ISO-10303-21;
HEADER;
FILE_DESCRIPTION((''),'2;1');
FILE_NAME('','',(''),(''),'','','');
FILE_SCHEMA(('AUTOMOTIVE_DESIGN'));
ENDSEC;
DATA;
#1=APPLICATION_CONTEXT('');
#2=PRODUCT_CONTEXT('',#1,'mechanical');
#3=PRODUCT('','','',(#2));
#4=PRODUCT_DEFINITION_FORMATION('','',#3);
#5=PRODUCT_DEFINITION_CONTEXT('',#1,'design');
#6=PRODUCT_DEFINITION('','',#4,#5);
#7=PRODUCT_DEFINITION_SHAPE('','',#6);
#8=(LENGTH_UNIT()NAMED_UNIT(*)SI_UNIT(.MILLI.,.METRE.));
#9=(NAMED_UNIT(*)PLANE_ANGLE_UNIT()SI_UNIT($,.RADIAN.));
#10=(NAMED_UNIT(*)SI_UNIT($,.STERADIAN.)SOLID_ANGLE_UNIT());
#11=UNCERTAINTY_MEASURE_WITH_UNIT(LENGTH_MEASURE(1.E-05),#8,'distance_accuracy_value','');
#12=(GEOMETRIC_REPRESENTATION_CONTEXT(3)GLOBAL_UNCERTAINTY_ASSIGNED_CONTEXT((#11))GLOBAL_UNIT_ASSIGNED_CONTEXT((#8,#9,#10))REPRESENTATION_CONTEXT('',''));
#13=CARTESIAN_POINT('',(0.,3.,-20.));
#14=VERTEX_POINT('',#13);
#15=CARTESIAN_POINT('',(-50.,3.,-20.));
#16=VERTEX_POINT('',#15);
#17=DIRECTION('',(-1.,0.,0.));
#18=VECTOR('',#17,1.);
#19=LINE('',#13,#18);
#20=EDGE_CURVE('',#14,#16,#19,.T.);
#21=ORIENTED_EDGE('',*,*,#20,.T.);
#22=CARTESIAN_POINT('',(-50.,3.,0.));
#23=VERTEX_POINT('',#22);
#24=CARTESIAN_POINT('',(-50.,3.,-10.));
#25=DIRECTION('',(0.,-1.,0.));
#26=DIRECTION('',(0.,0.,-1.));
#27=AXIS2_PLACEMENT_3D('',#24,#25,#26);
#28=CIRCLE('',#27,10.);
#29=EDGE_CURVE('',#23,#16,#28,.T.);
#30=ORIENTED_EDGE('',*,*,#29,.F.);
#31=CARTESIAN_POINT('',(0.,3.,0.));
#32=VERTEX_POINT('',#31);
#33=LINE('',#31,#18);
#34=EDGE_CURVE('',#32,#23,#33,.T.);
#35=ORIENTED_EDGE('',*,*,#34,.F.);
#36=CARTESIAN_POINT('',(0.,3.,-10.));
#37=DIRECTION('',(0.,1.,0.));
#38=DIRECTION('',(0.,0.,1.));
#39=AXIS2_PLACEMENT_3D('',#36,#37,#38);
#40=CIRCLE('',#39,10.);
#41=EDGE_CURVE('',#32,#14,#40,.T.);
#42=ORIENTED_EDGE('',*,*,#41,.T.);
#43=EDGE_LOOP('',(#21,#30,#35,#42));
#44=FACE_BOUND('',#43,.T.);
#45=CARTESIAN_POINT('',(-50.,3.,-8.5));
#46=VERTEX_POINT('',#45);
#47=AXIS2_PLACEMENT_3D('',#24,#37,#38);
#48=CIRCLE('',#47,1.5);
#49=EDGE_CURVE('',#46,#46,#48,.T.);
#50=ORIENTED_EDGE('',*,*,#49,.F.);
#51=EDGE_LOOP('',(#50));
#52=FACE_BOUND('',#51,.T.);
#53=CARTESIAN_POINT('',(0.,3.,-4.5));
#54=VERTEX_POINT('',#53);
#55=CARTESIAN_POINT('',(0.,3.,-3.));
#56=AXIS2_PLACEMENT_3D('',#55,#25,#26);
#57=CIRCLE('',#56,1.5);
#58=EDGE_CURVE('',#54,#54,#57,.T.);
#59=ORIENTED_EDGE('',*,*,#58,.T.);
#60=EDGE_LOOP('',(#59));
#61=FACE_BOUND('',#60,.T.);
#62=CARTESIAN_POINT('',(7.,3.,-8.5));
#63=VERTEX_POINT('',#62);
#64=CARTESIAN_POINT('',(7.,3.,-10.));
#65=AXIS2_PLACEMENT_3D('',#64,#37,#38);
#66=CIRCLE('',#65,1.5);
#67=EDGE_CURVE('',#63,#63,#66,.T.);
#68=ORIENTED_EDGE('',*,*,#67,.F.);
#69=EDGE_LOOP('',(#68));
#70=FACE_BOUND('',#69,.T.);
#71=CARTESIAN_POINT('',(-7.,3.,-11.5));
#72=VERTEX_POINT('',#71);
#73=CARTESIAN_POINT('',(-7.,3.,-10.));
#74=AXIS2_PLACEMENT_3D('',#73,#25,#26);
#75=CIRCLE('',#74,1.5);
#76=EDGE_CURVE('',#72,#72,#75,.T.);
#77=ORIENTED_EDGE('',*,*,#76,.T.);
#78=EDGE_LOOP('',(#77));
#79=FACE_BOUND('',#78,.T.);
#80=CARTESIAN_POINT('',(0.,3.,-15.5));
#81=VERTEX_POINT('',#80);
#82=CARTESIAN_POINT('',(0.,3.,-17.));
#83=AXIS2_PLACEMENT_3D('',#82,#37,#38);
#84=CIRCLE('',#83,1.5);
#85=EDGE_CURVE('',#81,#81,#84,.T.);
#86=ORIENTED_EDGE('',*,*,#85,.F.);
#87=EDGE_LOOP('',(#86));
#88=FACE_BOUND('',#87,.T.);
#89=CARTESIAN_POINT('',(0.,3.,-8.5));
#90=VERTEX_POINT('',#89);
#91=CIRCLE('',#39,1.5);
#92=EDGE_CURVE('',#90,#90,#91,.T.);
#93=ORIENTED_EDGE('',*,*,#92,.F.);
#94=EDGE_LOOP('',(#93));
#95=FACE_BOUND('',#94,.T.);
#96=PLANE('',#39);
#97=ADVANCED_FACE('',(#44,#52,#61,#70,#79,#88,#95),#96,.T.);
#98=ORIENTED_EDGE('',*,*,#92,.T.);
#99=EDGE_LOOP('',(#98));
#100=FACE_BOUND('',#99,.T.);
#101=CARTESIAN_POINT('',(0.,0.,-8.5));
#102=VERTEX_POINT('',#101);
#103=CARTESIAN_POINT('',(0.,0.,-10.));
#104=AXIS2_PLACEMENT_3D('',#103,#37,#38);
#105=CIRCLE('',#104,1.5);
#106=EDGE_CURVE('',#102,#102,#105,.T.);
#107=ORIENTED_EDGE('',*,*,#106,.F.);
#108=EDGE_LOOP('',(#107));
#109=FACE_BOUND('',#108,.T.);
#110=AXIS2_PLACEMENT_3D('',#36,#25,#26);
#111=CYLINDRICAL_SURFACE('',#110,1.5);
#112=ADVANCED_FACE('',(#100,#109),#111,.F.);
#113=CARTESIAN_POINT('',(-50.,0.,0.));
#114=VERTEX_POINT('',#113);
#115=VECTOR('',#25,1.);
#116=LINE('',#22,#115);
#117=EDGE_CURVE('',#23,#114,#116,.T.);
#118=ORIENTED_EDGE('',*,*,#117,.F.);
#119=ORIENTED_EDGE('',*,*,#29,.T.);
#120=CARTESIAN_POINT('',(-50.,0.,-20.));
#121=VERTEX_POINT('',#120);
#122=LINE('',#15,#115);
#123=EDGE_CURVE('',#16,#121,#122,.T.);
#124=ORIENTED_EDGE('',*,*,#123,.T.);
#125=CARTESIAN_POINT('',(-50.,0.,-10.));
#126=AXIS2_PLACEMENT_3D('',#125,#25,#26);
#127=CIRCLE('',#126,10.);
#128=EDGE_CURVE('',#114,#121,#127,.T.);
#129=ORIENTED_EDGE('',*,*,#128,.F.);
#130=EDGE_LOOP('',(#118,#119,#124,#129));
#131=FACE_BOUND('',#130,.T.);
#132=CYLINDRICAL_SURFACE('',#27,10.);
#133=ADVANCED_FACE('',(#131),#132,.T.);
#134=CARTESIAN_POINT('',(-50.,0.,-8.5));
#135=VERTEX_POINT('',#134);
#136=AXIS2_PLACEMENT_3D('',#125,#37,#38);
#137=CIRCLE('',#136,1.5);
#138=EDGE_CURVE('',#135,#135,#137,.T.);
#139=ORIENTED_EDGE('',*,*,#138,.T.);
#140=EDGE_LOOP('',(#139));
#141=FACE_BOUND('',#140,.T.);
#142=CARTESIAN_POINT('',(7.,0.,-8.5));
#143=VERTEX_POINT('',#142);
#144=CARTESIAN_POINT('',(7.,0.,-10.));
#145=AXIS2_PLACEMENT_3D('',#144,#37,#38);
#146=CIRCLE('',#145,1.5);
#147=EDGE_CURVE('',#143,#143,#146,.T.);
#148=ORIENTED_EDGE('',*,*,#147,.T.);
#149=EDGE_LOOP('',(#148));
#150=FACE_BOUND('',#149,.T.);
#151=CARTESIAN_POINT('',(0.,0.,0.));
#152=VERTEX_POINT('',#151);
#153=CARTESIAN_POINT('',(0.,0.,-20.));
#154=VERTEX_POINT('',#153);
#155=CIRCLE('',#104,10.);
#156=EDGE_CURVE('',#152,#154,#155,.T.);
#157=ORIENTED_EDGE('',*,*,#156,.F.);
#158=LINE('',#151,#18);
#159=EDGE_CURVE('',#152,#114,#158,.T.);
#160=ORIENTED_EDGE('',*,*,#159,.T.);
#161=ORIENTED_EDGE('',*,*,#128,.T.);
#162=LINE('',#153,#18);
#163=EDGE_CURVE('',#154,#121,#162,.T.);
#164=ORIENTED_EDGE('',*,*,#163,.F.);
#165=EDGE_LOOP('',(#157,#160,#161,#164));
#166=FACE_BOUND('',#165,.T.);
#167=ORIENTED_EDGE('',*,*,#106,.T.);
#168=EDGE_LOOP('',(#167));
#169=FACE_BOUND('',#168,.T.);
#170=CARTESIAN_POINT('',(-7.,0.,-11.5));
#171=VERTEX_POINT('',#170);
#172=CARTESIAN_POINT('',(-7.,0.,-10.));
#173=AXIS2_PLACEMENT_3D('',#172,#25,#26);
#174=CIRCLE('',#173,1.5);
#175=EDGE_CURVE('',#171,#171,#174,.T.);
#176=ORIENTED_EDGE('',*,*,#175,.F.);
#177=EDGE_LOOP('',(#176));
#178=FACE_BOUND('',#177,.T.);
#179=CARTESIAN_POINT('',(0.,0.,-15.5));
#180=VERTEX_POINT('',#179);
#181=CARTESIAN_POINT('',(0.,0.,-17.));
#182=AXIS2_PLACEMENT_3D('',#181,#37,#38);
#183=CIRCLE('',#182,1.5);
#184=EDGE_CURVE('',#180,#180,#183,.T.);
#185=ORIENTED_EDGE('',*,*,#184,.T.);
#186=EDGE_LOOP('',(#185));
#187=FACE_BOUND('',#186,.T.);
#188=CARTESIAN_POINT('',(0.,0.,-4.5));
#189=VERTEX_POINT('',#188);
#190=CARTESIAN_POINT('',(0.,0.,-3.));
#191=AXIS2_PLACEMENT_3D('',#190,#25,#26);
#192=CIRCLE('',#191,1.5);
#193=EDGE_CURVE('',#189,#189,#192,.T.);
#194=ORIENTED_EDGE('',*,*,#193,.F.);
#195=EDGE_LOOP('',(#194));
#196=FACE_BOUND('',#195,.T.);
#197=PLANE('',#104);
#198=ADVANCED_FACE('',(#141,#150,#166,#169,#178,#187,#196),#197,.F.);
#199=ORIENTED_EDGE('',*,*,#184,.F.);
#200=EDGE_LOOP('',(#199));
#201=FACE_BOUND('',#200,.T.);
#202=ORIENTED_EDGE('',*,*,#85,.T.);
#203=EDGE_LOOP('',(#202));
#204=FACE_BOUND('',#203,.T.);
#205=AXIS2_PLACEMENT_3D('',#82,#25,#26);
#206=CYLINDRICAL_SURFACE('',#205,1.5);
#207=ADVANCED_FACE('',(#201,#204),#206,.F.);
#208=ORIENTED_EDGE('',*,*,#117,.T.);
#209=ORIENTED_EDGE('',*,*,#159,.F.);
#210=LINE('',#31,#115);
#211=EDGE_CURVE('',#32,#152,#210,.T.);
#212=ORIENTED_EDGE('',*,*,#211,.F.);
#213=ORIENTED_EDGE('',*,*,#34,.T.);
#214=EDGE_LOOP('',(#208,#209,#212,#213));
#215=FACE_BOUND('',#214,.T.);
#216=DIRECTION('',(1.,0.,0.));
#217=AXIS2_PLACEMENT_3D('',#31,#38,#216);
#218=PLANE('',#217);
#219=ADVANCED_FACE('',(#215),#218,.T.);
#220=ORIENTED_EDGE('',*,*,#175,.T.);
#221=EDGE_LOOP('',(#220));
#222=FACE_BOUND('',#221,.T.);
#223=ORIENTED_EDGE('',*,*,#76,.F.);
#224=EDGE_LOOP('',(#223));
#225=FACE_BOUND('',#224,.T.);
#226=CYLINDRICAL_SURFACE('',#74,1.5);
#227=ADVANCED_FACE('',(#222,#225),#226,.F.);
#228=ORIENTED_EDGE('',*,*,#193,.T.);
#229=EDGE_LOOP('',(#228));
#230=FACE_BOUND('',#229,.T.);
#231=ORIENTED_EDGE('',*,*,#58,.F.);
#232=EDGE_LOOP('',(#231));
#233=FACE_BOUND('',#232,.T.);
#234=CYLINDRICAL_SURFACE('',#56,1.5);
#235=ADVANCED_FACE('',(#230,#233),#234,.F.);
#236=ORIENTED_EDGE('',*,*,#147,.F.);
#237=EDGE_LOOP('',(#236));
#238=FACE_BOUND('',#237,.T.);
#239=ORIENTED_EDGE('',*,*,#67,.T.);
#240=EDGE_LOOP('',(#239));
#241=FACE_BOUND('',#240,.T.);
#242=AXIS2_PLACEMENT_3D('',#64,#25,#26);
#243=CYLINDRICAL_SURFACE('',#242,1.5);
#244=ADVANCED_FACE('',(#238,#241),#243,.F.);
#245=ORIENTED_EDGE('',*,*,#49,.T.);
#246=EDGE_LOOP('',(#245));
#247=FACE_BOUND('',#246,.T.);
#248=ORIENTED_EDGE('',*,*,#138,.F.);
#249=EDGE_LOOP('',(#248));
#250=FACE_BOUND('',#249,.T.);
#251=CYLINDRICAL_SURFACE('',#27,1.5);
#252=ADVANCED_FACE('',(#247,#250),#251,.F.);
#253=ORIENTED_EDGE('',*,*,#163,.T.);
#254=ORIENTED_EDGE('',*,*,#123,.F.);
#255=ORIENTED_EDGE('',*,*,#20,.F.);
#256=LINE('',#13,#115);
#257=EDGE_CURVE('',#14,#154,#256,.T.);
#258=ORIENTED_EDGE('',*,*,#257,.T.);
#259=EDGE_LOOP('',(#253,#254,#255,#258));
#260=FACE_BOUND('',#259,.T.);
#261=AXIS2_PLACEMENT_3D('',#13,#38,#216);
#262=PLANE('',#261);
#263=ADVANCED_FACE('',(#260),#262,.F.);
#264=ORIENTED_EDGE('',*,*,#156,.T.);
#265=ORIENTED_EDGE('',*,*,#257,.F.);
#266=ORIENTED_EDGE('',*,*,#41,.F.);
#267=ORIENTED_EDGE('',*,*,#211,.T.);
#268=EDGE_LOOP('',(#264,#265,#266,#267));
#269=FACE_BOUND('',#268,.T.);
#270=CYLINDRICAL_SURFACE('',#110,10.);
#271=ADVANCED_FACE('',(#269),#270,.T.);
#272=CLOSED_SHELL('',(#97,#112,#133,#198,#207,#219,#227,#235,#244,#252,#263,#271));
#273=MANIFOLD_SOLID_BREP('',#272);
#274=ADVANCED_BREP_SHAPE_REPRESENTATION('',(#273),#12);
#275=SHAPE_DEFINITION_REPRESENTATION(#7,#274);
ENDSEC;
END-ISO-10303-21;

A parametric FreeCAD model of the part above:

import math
import FreeCAD as App
import Part
import Sketcher
from FreeCAD import Vector

doc = App.newDocument("Part")
params = doc.addObject("Spreadsheet::Sheet", "Params")
for row, (alias, value) in enumerate([
    ("sketch1_diameter", "3 mm"),
    ("sketch1_radius", "10 mm"),
    ("sketch1_width", "50 mm"),
    ("pad1_length", "3 mm"),
], start=1):
    params.set(f"A{row}", alias)
    params.set(f"B{row}", "=" + value)
    params.setAlias(f"B{row}", alias)

body = doc.addObject("PartDesign::Body", "Body")

sketch1 = body.newObject("Sketcher::SketchObject", "Sketch")
sketch1.AttachmentSupport = (doc.getObject("XZ_Plane"), [""])
sketch1.MapMode = "FlatFace"
sketch1.addGeometry(Part.LineSegment(Vector(-50, 0, 0), Vector(0, 0, 0)), False)
sketch1.addGeometry(Part.ArcOfCircle(Part.Circle(Vector(0, -10, 0), Vector(0, 0, 1), 10), math.radians(-90), math.radians(90)), False)
sketch1.addGeometry(Part.LineSegment(Vector(0, -20, 0), Vector(-50, -20, 0)), False)
sketch1.addGeometry(Part.ArcOfCircle(Part.Circle(Vector(-50, -10, 0), Vector(0, 0, 1), 10), math.radians(90), math.radians(270)), False)
sketch1.addGeometry(Part.Circle(Vector(0, -3, 0), Vector(0, 0, 1), 1.5), False)
sketch1.addGeometry(Part.Circle(Vector(7, -10, 0), Vector(0, 0, 1), 1.5), False)
sketch1.addGeometry(Part.Circle(Vector(0, -10, 0), Vector(0, 0, 1), 1.5), False)
sketch1.addGeometry(Part.Circle(Vector(-7, -10, 0), Vector(0, 0, 1), 1.5), False)
sketch1.addGeometry(Part.Circle(Vector(0, -17, 0), Vector(0, 0, 1), 1.5), False)
sketch1.addGeometry(Part.Circle(Vector(-50, -10, 0), Vector(0, 0, 1), 1.5), False)
sketch1.addConstraint(Sketcher.Constraint("Tangent", 0, 2, 1, 2))
sketch1.addConstraint(Sketcher.Constraint("Tangent", 1, 1, 2, 1))
sketch1.addConstraint(Sketcher.Constraint("Tangent", 2, 2, 3, 2))
sketch1.addConstraint(Sketcher.Constraint("Tangent", 3, 1, 0, 1))
sketch1.addConstraint(Sketcher.Constraint("Horizontal", 0))
sketch1.addConstraint(Sketcher.Constraint("Horizontal", 2))
sketch1.addConstraint(Sketcher.Constraint("Coincident", 0, 2, -1, 1))
sketch1.addConstraint(Sketcher.Constraint("Coincident", 6, 3, 1, 3))
sketch1.addConstraint(Sketcher.Constraint("Coincident", 9, 3, 3, 3))
sketch1.addConstraint(Sketcher.Constraint("Equal", 4, 5))
sketch1.addConstraint(Sketcher.Constraint("Equal", 5, 6))
sketch1.addConstraint(Sketcher.Constraint("Equal", 6, 7))
sketch1.addConstraint(Sketcher.Constraint("Equal", 7, 8))
sketch1.addConstraint(Sketcher.Constraint("Equal", 8, 9))
sketch1.addConstraint(Sketcher.Constraint("Symmetric", 5, 3, 7, 3, -2))
sketch1.addConstraint(Sketcher.Constraint("PointOnObject", 4, 3, -2))
sketch1.addConstraint(Sketcher.Constraint("PointOnObject", 8, 3, -2))
sketch1.addConstraint(Sketcher.Constraint("Horizontal", 3, 3, 5, 3))
sketch1.addConstraint(Sketcher.Constraint("Diameter", 4, 3.0))
sketch1.addConstraint(Sketcher.Constraint("Radius", 1, 10.0))
sketch1.addConstraint(Sketcher.Constraint("DistanceX", 0, 1, 0, 2, 50.0))
sketch1.addConstraint(Sketcher.Constraint("DistanceY", 4, 3, -1, 1, 3.0))
sketch1.addConstraint(Sketcher.Constraint("DistanceX", -1, 1, 5, 3, 7.0))
sketch1.addConstraint(Sketcher.Constraint("DistanceY", 8, 3, -1, 1, 17.0))
sketch1.setExpression("Constraints[18]", "Params.sketch1_diameter")
sketch1.setExpression("Constraints[19]", "Params.sketch1_radius")
sketch1.setExpression("Constraints[20]", "Params.sketch1_width")
pad1 = body.newObject("PartDesign::Pad", "Pad")
pad1.Profile = sketch1
pad1.setExpression("Length", "Params.pad1_length")
pad1.Reversed = True

doc.recompute()
